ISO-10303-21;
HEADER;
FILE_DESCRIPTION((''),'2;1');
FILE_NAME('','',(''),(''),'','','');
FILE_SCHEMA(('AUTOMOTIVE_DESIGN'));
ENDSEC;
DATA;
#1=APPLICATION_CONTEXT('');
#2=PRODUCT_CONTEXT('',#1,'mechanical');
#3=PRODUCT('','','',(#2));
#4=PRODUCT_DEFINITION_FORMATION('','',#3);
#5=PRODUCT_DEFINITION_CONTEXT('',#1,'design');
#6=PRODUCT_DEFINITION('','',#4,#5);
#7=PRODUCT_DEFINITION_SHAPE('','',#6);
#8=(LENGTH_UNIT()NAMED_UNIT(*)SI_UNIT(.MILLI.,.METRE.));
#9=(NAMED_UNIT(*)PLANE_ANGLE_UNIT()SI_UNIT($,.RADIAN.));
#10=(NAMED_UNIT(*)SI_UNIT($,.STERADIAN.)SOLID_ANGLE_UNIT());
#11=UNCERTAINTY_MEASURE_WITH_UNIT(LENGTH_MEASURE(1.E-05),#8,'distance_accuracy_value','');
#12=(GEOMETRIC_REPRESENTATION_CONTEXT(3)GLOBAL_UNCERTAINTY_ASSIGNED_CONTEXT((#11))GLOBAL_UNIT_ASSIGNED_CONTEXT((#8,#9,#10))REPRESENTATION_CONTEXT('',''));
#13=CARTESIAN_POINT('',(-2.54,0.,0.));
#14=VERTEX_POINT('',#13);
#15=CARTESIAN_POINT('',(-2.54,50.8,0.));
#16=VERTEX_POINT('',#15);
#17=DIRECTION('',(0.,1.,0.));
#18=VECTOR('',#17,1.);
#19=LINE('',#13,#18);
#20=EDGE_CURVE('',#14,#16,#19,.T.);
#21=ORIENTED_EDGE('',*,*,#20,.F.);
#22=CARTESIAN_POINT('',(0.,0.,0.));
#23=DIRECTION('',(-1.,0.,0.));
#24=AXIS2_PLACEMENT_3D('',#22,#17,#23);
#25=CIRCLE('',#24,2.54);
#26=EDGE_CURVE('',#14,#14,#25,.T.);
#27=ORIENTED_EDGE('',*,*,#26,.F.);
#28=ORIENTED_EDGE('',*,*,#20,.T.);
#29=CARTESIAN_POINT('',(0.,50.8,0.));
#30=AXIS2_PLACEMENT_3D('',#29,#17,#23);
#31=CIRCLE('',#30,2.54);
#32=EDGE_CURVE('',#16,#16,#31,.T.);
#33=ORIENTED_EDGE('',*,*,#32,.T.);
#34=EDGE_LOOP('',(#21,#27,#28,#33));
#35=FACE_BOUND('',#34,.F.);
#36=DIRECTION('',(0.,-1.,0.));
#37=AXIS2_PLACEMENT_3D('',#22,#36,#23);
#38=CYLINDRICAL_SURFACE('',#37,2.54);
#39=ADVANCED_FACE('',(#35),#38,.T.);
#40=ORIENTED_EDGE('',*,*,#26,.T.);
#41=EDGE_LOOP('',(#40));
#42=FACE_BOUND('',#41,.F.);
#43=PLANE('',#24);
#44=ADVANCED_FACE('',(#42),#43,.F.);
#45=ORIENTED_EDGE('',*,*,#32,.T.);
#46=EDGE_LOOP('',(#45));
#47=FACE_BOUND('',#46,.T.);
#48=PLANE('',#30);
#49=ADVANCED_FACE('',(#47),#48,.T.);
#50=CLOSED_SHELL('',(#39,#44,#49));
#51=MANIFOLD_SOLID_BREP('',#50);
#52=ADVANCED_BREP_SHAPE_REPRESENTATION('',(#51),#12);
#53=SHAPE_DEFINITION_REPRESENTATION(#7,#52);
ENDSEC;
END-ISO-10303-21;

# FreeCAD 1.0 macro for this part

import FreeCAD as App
import Part
import Sketcher
from FreeCAD import Vector
Q = App.Units.Quantity

doc = App.newDocument("Part")
body = doc.addObject("PartDesign::Body", "Body")

# Sketch on XZ plane
sketch1 = doc.addObject("Sketcher::SketchObject", "Sketch")
body.addObject(sketch1)
sketch1.AttachmentSupport = (doc.XZ_Plane, [""])
sketch1.MapMode = "FlatFace"
sketch1.addGeometry(Part.Circle(Vector(0, 0, 0), Vector(0, 0, 1), 2.54), False)
sketch1.addConstraint(Sketcher.Constraint("Coincident", 0, 3, -1, 1))
sketch1.addConstraint(Sketcher.Constraint("Diameter", 0, Q("0.2 in")))
pad1 = doc.addObject("PartDesign::Pad", "Pad")
body.addObject(pad1)
pad1.Profile = sketch1
pad1.Length = Q("2 in")
pad1.Reversed = True

doc.recompute()
